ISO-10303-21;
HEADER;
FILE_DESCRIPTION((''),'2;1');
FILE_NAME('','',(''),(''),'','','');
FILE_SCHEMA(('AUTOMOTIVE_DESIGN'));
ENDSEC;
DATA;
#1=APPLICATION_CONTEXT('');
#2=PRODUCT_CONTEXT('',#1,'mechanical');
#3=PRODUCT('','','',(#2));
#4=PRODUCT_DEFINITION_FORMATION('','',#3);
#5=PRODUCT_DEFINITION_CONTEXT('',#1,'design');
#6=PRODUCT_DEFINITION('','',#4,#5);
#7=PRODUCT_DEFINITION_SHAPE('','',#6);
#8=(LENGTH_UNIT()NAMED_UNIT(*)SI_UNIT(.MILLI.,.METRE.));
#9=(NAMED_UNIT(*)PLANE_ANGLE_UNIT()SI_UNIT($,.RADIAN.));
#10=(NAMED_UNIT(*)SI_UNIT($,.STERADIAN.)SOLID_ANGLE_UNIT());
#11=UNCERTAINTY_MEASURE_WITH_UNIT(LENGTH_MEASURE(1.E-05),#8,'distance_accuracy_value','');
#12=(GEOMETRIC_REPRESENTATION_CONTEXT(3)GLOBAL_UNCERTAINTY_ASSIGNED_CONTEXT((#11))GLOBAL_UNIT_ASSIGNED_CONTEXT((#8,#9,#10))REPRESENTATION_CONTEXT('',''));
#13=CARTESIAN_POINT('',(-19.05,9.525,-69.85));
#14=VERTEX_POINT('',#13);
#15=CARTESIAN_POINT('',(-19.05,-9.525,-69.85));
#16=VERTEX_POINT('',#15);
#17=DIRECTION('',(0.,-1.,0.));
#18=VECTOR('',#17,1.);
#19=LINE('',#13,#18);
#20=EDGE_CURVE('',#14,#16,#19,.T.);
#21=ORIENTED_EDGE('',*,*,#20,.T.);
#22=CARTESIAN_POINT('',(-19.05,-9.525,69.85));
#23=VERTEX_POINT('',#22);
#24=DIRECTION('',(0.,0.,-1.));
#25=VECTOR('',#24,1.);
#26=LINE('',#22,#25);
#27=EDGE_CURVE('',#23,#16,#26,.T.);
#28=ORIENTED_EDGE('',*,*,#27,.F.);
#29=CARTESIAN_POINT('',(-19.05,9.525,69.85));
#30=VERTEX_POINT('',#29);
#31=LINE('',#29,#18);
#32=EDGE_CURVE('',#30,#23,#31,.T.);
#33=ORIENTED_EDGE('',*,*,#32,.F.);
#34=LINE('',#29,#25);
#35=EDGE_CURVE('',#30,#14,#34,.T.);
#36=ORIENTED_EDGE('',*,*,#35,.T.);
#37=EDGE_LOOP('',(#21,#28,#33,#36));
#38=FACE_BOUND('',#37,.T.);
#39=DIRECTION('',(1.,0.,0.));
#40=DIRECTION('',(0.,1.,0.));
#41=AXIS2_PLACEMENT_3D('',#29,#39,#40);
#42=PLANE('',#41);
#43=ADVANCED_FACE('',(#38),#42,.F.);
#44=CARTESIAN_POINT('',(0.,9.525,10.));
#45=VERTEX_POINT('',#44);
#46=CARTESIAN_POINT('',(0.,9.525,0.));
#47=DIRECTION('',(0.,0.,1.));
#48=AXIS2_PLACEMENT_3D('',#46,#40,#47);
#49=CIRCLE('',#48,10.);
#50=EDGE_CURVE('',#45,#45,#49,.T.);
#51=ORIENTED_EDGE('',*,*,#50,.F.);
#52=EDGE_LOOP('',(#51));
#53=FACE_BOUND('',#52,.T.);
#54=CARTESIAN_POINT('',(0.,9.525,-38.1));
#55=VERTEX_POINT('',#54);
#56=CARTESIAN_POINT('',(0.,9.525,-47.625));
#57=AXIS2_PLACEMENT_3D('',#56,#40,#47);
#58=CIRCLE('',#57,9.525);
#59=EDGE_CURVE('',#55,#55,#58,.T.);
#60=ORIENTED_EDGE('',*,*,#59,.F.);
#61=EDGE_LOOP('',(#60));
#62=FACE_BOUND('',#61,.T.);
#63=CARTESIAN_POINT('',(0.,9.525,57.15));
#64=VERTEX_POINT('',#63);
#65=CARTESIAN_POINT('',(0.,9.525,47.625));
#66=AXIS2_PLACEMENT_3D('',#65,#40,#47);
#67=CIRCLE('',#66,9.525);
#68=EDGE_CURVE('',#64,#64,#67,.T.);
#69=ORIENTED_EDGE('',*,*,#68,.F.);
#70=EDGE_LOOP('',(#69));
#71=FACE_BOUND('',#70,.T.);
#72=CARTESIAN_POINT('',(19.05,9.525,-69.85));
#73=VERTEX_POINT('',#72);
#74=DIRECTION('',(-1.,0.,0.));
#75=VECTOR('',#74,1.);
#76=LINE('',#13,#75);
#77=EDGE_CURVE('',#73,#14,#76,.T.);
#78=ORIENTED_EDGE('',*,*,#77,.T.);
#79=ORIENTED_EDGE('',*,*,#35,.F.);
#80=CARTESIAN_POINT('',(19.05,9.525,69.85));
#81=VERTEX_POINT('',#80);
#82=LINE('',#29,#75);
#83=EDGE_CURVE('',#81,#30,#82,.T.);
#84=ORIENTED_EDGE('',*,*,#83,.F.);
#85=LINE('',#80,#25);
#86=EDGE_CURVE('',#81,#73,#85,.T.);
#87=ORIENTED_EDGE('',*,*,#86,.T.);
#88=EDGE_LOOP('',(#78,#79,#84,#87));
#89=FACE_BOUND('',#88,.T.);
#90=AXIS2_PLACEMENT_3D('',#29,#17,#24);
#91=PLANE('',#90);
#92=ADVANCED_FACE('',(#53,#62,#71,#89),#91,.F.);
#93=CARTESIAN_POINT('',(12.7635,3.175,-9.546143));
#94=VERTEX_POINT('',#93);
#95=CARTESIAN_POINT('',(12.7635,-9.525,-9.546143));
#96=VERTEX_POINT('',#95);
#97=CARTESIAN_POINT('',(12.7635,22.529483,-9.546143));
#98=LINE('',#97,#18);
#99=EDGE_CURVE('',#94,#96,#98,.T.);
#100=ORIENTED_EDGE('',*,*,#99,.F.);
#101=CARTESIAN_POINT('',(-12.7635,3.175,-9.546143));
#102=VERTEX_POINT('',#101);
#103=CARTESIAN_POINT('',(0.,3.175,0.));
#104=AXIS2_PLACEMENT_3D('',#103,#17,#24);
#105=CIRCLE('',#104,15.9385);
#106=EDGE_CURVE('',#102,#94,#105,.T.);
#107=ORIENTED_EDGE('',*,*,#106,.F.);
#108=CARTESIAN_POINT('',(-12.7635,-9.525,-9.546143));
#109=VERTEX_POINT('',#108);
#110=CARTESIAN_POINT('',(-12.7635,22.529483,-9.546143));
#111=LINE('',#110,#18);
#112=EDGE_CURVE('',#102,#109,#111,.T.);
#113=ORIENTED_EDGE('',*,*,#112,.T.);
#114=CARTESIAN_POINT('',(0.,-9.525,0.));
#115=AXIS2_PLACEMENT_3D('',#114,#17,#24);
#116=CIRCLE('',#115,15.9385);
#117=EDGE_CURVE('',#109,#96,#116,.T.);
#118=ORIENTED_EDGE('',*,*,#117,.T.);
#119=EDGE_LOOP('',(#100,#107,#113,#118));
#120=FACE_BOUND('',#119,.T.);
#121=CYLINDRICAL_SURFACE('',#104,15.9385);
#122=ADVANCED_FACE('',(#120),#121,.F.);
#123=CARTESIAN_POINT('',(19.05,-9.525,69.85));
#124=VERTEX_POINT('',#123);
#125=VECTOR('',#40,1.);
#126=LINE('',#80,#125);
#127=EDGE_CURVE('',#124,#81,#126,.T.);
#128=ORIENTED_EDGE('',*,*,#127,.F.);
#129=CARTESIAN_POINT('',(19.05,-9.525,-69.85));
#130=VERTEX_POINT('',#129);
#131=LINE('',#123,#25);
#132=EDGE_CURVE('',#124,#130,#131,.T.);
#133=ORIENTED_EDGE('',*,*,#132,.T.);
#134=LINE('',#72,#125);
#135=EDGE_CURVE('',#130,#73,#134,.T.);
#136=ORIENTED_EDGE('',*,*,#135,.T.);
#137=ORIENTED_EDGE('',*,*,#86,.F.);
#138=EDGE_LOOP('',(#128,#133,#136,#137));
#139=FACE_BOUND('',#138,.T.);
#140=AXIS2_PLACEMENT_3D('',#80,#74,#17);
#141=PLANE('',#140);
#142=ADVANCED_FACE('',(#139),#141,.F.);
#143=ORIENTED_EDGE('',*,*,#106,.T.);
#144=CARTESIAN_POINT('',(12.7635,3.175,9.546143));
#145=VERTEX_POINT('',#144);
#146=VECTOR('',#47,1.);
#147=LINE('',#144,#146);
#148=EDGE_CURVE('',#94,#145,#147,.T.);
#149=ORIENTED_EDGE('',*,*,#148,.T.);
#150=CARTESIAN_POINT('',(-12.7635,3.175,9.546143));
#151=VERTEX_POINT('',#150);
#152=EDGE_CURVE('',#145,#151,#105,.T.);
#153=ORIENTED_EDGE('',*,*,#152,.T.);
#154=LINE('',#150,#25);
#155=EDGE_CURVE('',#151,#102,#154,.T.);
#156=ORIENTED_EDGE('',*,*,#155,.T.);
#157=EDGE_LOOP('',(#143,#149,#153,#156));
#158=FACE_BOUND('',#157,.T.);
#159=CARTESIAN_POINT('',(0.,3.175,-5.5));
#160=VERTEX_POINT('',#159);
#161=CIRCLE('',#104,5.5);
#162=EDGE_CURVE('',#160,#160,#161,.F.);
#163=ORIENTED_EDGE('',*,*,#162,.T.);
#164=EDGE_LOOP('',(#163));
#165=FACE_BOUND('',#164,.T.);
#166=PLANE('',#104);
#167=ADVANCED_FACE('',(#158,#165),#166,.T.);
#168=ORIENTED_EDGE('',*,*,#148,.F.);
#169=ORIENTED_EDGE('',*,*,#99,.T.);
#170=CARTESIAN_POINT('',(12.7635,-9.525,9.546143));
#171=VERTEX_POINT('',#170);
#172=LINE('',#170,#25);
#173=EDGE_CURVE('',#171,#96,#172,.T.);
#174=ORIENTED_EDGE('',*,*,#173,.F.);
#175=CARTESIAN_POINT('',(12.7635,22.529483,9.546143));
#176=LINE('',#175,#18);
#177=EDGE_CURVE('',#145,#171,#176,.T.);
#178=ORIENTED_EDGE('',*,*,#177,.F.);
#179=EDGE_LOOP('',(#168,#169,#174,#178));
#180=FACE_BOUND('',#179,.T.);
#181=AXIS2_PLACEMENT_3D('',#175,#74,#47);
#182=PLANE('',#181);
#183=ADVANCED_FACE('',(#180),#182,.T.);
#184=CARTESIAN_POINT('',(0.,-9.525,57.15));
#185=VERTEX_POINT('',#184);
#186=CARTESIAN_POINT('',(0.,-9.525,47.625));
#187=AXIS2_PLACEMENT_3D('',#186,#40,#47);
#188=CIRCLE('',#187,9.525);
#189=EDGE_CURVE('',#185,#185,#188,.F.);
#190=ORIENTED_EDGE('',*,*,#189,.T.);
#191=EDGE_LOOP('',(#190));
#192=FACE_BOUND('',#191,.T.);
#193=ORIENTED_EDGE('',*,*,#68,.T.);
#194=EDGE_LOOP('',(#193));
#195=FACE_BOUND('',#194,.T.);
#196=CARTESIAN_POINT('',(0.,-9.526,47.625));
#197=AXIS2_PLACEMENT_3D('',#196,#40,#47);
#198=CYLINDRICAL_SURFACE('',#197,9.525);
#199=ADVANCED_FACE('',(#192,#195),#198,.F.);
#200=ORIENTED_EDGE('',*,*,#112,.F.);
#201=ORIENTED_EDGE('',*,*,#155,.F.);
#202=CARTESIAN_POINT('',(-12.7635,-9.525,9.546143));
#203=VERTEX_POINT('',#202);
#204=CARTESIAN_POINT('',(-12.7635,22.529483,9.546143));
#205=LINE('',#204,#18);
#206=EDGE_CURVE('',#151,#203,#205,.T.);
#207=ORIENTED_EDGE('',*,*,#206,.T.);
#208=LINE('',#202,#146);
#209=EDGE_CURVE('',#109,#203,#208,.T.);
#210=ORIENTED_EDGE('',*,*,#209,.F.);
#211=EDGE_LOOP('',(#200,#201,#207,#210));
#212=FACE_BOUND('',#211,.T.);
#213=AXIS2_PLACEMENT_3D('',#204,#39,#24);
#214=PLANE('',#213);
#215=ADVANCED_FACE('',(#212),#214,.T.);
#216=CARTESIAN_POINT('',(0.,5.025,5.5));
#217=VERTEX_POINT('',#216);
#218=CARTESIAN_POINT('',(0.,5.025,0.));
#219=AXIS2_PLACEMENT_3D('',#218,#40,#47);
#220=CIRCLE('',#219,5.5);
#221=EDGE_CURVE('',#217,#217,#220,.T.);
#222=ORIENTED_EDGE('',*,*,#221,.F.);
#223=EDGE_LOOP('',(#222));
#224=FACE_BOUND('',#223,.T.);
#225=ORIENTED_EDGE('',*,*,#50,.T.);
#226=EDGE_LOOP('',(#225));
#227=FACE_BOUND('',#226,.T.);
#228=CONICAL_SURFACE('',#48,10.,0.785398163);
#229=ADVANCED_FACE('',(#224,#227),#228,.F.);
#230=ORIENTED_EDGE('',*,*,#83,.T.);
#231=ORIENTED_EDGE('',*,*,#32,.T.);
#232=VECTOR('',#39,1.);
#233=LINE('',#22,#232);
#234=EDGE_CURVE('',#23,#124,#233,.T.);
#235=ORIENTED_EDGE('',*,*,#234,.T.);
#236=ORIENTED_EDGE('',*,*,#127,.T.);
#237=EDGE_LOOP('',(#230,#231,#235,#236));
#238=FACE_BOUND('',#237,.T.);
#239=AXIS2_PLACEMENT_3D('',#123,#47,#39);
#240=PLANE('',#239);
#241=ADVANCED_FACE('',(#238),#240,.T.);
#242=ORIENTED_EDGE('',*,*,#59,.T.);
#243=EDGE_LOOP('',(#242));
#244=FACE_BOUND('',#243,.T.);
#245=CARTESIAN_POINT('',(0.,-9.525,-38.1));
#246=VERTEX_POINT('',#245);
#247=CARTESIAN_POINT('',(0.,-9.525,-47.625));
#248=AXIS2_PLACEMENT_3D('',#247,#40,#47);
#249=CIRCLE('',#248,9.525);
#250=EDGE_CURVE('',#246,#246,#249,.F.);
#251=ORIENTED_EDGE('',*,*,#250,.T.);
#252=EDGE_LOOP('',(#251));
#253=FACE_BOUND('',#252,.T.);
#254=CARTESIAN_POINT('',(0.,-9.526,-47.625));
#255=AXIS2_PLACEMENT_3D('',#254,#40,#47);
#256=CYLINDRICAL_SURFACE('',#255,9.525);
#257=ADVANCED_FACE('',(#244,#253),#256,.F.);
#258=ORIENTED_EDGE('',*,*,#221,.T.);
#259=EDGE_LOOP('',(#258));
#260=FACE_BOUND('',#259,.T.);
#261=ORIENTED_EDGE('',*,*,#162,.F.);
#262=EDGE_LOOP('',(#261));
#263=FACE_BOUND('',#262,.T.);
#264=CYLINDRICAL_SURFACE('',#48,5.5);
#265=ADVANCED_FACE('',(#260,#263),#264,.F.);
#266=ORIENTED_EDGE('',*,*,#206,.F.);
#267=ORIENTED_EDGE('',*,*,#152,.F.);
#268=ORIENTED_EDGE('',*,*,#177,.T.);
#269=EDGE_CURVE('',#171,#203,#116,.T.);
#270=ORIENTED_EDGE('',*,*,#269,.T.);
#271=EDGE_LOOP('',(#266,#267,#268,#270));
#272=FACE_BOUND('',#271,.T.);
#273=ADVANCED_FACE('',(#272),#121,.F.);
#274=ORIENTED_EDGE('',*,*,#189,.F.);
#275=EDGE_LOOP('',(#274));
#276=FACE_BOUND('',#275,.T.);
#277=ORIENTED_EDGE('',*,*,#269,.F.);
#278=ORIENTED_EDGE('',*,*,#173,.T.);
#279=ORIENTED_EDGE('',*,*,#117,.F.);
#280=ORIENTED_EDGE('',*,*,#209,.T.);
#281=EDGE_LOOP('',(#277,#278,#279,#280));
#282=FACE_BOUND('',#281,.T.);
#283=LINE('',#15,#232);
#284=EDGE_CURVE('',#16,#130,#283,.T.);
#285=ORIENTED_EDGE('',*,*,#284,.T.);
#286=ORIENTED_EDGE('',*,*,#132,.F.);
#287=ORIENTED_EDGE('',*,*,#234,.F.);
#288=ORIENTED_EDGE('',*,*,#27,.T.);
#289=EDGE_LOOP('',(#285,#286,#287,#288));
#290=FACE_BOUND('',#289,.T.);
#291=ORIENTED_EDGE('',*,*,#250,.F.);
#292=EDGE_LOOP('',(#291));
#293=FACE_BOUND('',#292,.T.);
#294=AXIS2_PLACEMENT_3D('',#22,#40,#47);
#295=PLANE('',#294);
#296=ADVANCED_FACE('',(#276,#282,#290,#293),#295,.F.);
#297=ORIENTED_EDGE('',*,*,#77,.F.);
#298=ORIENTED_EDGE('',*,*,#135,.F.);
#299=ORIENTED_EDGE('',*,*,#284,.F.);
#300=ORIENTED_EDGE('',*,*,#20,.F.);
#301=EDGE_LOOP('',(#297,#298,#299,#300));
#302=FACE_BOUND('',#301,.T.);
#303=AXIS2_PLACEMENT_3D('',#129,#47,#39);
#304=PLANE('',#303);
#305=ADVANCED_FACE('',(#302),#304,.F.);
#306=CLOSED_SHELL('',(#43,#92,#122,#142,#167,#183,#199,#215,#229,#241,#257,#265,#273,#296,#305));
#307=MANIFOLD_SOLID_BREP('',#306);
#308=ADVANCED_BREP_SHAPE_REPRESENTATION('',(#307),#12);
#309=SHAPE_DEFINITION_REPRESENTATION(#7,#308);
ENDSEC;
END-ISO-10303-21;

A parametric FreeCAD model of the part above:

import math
import FreeCAD as App
import Part
import Sketcher
Q = App.Units.Quantity

doc = App.newDocument("Part")
params = doc.addObject("Spreadsheet::Sheet", "Params")
for row, (alias, value) in enumerate([
    ("sketch1_width", "1.5 in"),
    ("sketch1_height", "0.75 in"),
    ("pad1_length", "5.5 in"),
    ("sketch2_diameter", "0.75 in"),
    ("sketch3_diameter", "0.75 in"),
    ("hole_diameter", "11 mm"),
    ("hole_depth", "1.16 in"),
    ("hole_csink_diameter", "20 mm"),
    ("sketch5_diameter", "1.255 in"),
    ("pocket3_length", "0.5 in"),
    ("pad2_length", "0.5 in"),
], start=1):
    params.set(f"A{row}", alias)
    params.set(f"B{row}", "=" + value)
    params.setAlias(f"B{row}", alias)

body = doc.addObject("PartDesign::Body", "Body")

# Sketch on XY plane
sketch1 = body.newObject("Sketcher::SketchObject", "Sketch")
sketch1.AttachmentSupport = (doc.getObject("XY_Plane"), [""])
sketch1.MapMode = "FlatFace"
sketch1.addGeometry([
    Part.LineSegment(App.Vector(-19, 10, 0), App.Vector(-19, -10, 0)),
    Part.LineSegment(App.Vector(-19, -10, 0), App.Vector(19, -10, 0)),
    Part.LineSegment(App.Vector(19, -10, 0), App.Vector(19, 10, 0)),
    Part.LineSegment(App.Vector(19, 10, 0), App.Vector(-19, 10, 0)),
], False)
sketch1.addConstraint([
    Sketcher.Constraint("Coincident", 0, 2, 1, 1),
    Sketcher.Constraint("Coincident", 1, 2, 2, 1),
    Sketcher.Constraint("Coincident", 2, 2, 3, 1),
    Sketcher.Constraint("Coincident", 3, 2, 0, 1),
    Sketcher.Constraint("Vertical", 0),
    Sketcher.Constraint("Horizontal", 1),
    Sketcher.Constraint("Vertical", 2),
    Sketcher.Constraint("Horizontal", 3),
    Sketcher.Constraint("Symmetric", 0, 2, 2, 2, -1, 1),
    Sketcher.Constraint("DistanceX", 1, 1, 1, 2, Q("1.5 in")),
    Sketcher.Constraint("DistanceY", 0, 2, 0, 1, Q("0.75 in")),
])
sketch1.setExpression("Constraints[9]", "Params.sketch1_width")
sketch1.setExpression("Constraints[10]", "Params.sketch1_height")
pad1 = body.newObject("PartDesign::Pad", "Pad")
pad1.Profile = sketch1
pad1.setExpression("Length", "Params.pad1_length")
pad1.Midplane = True

# Sketch on XZ plane
sketch2 = body.newObject("Sketcher::SketchObject", "Sketch001")
sketch2.AttachmentSupport = (doc.getObject("XZ_Plane"), [""])
sketch2.MapMode = "FlatFace"
sketch2.AttachmentOffset = App.Placement(App.Vector(0, 0, -0.375 * 25.4), App.Rotation())
sketch2.addGeometry(Part.Circle(App.Vector(0, -48, 0), App.Vector(0, 0, 1), 10), False)
sketch2.addConstraint([
    Sketcher.Constraint("PointOnObject", 0, 3, -2),
    Sketcher.Constraint("Diameter", 0, Q("0.75 in")),
    Sketcher.Constraint("DistanceY", 0, 3, -1, 1, Q("1.875 in")),
])
sketch2.setExpression("Constraints[1]", "Params.sketch2_diameter")
pocket1 = body.newObject("PartDesign::Pocket", "Pocket")
pocket1.Profile = sketch2
pocket1.Type = "UpToFirst"
pocket1.Reversed = True

# Sketch on XZ plane
sketch3 = body.newObject("Sketcher::SketchObject", "Sketch002")
sketch3.AttachmentSupport = (doc.getObject("XZ_Plane"), [""])
sketch3.MapMode = "FlatFace"
sketch3.AttachmentOffset = App.Placement(App.Vector(0, 0, -0.375 * 25.4), App.Rotation())
sketch3.addGeometry(Part.Circle(App.Vector(0, 48, 0), App.Vector(0, 0, 1), 10), False)
sketch3.addConstraint([
    Sketcher.Constraint("PointOnObject", 0, 3, -2),
    Sketcher.Constraint("Diameter", 0, Q("0.75 in")),
    Sketcher.Constraint("DistanceY", -1, 1, 0, 3, Q("1.875 in")),
])
sketch3.setExpression("Constraints[1]", "Params.sketch3_diameter")
pocket2 = body.newObject("PartDesign::Pocket", "Pocket001")
pocket2.Profile = sketch3
pocket2.Type = "UpToFirst"
pocket2.Reversed = True

# Sketch on XZ plane
sketch4 = body.newObject("Sketcher::SketchObject", "Sketch003")
sketch4.AttachmentSupport = (doc.getObject("XZ_Plane"), [""])
sketch4.MapMode = "FlatFace"
sketch4.AttachmentOffset = App.Placement(App.Vector(0, 0, -0.375 * 25.4), App.Rotation())
sketch4.addGeometry(Part.Circle(App.Vector(0, 0, 0), App.Vector(0, 0, 1), 6), False)
sketch4.addConstraint([
    Sketcher.Constraint("Coincident", 0, 3, -1, 1),
    Sketcher.Constraint("Diameter", 0, 11.0),
])
doc.recompute()
hole = body.newObject("PartDesign::Hole", "Hole")
hole.Profile = sketch4
hole.ThreadType = "None"
hole.setExpression("Diameter", "Params.hole_diameter")
hole.DepthType = "Dimension"
hole.setExpression("Depth", "Params.hole_depth")
hole.DrillPoint = "Angled"
hole.DrillPointAngle = 118
hole.HoleCutType = "Countersink"
hole.setExpression("HoleCutDiameter", "Params.hole_csink_diameter")
hole.HoleCutCountersinkAngle = 90
hole.Reversed = True

# Sketch on XZ plane
sketch5 = body.newObject("Sketcher::SketchObject", "Sketch004")
sketch5.AttachmentSupport = (doc.getObject("XZ_Plane"), [""])
sketch5.MapMode = "FlatFace"
sketch5.AttachmentOffset = App.Placement(App.Vector(0, 0, 0.375 * 25.4), App.Rotation())
sketch5.addGeometry(Part.Circle(App.Vector(0, 0, 0), App.Vector(0, 0, 1), 16), False)
sketch5.addConstraint([
    Sketcher.Constraint("Coincident", 0, 3, -1, 1),
    Sketcher.Constraint("Diameter", 0, Q("1.255 in")),
])
sketch5.setExpression("Constraints[1]", "Params.sketch5_diameter")
pocket3 = body.newObject("PartDesign::Pocket", "Pocket002")
pocket3.Profile = sketch5
pocket3.setExpression("Length", "Params.pocket3_length")

# Sketch on XZ plane
sketch6 = body.newObject("Sketcher::SketchObject", "Sketch005")
sketch6.AttachmentSupport = (doc.getObject("XZ_Plane"), [""])
sketch6.MapMode = "FlatFace"
sketch6.AttachmentOffset = App.Placement(App.Vector(0, 0, 0.375 * 25.4), App.Rotation())
sketch6.addGeometry([
    Part.LineSegment(App.Vector(-13, -10, 0), App.Vector(-13, 10, 0)),
    Part.ArcOfCircle(Part.Circle(App.Vector(0, 0, 0), App.Vector(0, 0, 1), 16), math.radians(143), math.radians(217)),
    Part.LineSegment(App.Vector(13, 10, 0), App.Vector(13, -10, 0)),
    Part.ArcOfCircle(Part.Circle(App.Vector(0, 0, 0), App.Vector(0, 0, 1), 16), math.radians(-37), math.radians(37)),
], False)
sketch6.addConstraint([
    Sketcher.Constraint("Coincident", 0, 1, 1, 2),
    Sketcher.Constraint("Coincident", 1, 1, 0, 2),
    Sketcher.Constraint("Coincident", 2, 1, 3, 2),
    Sketcher.Constraint("Coincident", 3, 1, 2, 2),
    Sketcher.Constraint("Vertical", 0),
    Sketcher.Constraint("Vertical", 2),
    Sketcher.Constraint("Coincident", 1, 3, -1, 1),
    Sketcher.Constraint("Coincident", 3, 3, -1, 1),
    Sketcher.Constraint("Equal", 1, 3),
    Sketcher.Constraint("Horizontal", 1, 1, 2, 1),
    Sketcher.Constraint("Radius", 1, Q("0.6275 in")),
    Sketcher.Constraint("DistanceX", 1, 1, 2, 1, Q("1.005 in")),
])
pad2 = body.newObject("PartDesign::Pad", "Pad001")
pad2.Profile = sketch6
pad2.setExpression("Length", "Params.pad2_length")
pad2.Reversed = True

doc.recompute()
